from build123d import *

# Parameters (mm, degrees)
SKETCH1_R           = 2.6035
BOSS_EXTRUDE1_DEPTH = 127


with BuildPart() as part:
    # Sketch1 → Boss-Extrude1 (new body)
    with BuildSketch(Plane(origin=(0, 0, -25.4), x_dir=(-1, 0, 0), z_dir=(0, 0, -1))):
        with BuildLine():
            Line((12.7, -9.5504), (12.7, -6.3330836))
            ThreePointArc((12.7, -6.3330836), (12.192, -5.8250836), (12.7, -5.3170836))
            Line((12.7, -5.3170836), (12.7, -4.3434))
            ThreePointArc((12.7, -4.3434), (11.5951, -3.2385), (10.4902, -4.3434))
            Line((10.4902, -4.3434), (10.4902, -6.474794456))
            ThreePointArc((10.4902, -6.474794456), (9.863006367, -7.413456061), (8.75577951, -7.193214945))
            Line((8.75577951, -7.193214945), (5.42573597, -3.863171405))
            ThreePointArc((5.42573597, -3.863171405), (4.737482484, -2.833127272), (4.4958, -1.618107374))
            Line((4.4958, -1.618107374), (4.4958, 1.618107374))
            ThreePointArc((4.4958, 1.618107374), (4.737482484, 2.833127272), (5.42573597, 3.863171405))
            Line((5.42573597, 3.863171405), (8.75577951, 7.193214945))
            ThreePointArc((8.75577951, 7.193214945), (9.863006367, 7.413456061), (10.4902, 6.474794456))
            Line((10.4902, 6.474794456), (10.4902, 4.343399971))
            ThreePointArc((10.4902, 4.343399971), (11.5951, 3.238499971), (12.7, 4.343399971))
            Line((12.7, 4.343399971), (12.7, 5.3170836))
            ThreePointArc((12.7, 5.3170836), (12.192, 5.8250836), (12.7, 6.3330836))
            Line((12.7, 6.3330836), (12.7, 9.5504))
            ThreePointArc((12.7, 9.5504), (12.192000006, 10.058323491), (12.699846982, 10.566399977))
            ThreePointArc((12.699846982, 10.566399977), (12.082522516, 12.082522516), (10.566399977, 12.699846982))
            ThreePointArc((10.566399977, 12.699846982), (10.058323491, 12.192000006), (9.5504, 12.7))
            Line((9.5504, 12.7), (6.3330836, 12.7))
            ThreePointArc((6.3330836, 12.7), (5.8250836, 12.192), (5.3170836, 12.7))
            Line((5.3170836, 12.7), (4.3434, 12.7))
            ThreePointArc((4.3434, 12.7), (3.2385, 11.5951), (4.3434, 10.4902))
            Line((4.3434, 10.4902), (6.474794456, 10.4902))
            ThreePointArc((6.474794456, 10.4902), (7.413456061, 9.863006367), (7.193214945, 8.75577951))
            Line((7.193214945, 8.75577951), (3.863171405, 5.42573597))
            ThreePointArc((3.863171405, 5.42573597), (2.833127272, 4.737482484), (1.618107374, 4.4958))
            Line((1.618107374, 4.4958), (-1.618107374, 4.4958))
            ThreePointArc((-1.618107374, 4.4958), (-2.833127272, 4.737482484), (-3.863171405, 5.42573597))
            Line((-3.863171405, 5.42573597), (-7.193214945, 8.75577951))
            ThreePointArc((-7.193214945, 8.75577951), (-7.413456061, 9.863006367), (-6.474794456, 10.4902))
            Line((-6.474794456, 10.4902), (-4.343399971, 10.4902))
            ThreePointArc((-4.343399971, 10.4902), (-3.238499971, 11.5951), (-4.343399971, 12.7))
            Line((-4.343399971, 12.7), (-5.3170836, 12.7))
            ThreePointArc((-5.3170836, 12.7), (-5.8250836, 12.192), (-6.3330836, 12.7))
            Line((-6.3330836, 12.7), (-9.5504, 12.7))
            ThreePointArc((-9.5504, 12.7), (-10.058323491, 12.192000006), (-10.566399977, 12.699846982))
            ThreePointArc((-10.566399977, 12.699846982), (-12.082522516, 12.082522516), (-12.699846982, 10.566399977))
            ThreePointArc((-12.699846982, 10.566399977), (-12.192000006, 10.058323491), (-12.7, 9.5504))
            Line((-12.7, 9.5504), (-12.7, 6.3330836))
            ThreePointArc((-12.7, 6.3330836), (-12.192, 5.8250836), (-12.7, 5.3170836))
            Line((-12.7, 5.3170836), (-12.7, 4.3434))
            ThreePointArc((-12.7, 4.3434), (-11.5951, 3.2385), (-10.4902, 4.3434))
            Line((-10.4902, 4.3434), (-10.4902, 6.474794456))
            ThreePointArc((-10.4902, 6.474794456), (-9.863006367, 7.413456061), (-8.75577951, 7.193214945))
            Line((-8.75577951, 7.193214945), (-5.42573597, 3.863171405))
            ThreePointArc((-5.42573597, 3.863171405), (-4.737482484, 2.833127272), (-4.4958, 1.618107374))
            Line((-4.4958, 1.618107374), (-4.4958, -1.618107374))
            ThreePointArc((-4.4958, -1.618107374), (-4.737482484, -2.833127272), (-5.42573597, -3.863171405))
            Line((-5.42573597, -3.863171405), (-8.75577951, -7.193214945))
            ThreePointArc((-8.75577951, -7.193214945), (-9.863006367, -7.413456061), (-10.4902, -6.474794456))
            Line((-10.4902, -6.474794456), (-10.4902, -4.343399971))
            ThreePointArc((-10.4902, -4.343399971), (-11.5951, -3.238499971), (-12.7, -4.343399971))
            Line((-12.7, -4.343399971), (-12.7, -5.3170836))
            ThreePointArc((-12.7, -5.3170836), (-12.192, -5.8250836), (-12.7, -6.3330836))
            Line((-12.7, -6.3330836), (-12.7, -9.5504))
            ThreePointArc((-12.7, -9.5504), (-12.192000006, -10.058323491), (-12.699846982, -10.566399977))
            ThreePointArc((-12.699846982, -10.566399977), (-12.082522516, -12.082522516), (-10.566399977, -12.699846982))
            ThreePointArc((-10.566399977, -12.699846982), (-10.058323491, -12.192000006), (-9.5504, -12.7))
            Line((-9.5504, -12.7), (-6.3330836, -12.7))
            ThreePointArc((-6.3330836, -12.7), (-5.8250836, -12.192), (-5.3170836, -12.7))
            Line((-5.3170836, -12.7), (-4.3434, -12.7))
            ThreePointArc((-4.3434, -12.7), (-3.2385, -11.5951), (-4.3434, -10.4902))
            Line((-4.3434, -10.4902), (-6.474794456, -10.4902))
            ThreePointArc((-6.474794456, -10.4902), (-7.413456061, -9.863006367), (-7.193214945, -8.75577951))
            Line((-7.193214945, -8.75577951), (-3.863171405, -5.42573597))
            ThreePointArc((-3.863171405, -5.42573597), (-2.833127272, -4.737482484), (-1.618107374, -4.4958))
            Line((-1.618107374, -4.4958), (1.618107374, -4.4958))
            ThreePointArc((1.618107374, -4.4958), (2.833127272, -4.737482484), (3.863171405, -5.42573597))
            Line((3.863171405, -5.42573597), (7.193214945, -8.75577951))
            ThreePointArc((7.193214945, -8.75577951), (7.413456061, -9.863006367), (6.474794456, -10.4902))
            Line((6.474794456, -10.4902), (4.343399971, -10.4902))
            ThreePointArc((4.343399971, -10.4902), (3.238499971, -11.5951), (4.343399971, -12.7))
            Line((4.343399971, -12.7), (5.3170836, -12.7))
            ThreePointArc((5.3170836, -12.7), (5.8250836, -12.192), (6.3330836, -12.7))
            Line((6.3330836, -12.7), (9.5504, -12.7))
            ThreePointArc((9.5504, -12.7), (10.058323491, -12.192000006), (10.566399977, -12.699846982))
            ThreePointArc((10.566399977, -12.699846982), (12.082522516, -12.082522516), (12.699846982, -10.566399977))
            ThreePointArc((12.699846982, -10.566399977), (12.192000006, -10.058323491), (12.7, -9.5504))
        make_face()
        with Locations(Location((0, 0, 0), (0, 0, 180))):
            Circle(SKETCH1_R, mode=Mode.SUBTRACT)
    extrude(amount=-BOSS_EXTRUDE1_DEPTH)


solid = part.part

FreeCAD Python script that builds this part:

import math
import FreeCAD as App
import Part
import Sketcher
from FreeCAD import Vector
Q = App.Units.Quantity

doc = App.newDocument("Part")
body = doc.addObject("PartDesign::Body", "Body")

sketch1 = body.newObject("Sketcher::SketchObject", "Sketch")
sketch1.AttachmentSupport = (doc.getObject("XY_Plane"), [""])
sketch1.MapMode = "FlatFace"
sketch1.AttachmentOffset = App.Placement(Vector(0, 0, -1 * 25.4), App.Rotation())
sketch1.addGeometry([
    Part.LineSegment(Vector(-12.7, -9.5504, 0), Vector(-12.7, -6.333084, 0)),
    Part.ArcOfCircle(Part.Circle(Vector(-12.7, -5.825084, 0), Vector(0, 0, 1), 0.508), math.radians(-90), math.radians(90)),
    Part.LineSegment(Vector(-12.7, -5.317084, 0), Vector(-12.7, -4.3434, 0)),
    Part.ArcOfCircle(Part.Circle(Vector(-11.5951, -4.3434, 0), Vector(0, 0, 1), 1.1049), math.radians(0), math.radians(180)),
    Part.LineSegment(Vector(-10.4902, -4.3434, 0), Vector(-10.4902, -6.474794, 0)),
    Part.ArcOfCircle(Part.Circle(Vector(-9.4742, -6.474794, 0), Vector(0, 0, 1), 1.016), math.radians(180), math.radians(315)),
    Part.LineSegment(Vector(-8.75578, -7.193215, 0), Vector(-5.425736, -3.863171, 0)),
    Part.ArcOfCircle(Part.Circle(Vector(-7.6708, -1.618107, 0), Vector(0, 0, 1), 3.175), math.radians(-45), math.radians(0)),
    Part.LineSegment(Vector(-4.4958, -1.618107, 0), Vector(-4.4958, 1.618107, 0)),
    Part.ArcOfCircle(Part.Circle(Vector(-7.6708, 1.618107, 0), Vector(0, 0, 1), 3.175), math.radians(0), math.radians(45)),
    Part.LineSegment(Vector(-5.425736, 3.863171, 0), Vector(-8.75578, 7.193215, 0)),
    Part.ArcOfCircle(Part.Circle(Vector(-9.4742, 6.474794, 0), Vector(0, 0, 1), 1.016), math.radians(45), math.radians(180)),
    Part.LineSegment(Vector(-10.4902, 6.474794, 0), Vector(-10.4902, 4.3434, 0)),
    Part.ArcOfCircle(Part.Circle(Vector(-11.5951, 4.3434, 0), Vector(0, 0, 1), 1.1049), math.radians(180), math.radians(360)),
    Part.LineSegment(Vector(-12.7, 4.3434, 0), Vector(-12.7, 5.317084, 0)),
    Part.ArcOfCircle(Part.Circle(Vector(-12.7, 5.825084, 0), Vector(0, 0, 1), 0.508), math.radians(-90), math.radians(90)),
    Part.LineSegment(Vector(-12.7, 6.333084, 0), Vector(-12.7, 9.5504, 0)),
    Part.ArcOfCircle(Part.Circle(Vector(-12.7, 10.0584, 0), Vector(0, 0, 1), 0.508), math.radians(-90), math.radians(89.982742)),
    Part.ArcOfCircle(Part.Circle(Vector(-10.5918, 10.5918, 0), Vector(0, 0, 1), 2.1082), math.radians(89.309672), math.radians(180.690328)),
    Part.ArcOfCircle(Part.Circle(Vector(-10.0584, 12.7, 0), Vector(0, 0, 1), 0.508), math.radians(-179.982742), math.radians(0)),
    Part.LineSegment(Vector(-9.5504, 12.7, 0), Vector(-6.333084, 12.7, 0)),
    Part.ArcOfCircle(Part.Circle(Vector(-5.825084, 12.7, 0), Vector(0, 0, 1), 0.508), math.radians(180), math.radians(360)),
    Part.LineSegment(Vector(-5.317084, 12.7, 0), Vector(-4.3434, 12.7, 0)),
    Part.ArcOfCircle(Part.Circle(Vector(-4.3434, 11.5951, 0), Vector(0, 0, 1), 1.1049), math.radians(-90), math.radians(90)),
    Part.LineSegment(Vector(-4.3434, 10.4902, 0), Vector(-6.474794, 10.4902, 0)),
    Part.ArcOfCircle(Part.Circle(Vector(-6.474794, 9.4742, 0), Vector(0, 0, 1), 1.016), math.radians(90), math.radians(225)),
    Part.LineSegment(Vector(-7.193215, 8.75578, 0), Vector(-3.863171, 5.425736, 0)),
    Part.ArcOfCircle(Part.Circle(Vector(-1.618107, 7.6708, 0), Vector(0, 0, 1), 3.175), math.radians(-135), math.radians(-90)),
    Part.LineSegment(Vector(-1.618107, 4.4958, 0), Vector(1.618107, 4.4958, 0)),
    Part.ArcOfCircle(Part.Circle(Vector(1.618107, 7.6708, 0), Vector(0, 0, 1), 3.175), math.radians(-90), math.radians(-45)),
    Part.LineSegment(Vector(3.863171, 5.425736, 0), Vector(7.193215, 8.75578, 0)),
    Part.ArcOfCircle(Part.Circle(Vector(6.474794, 9.4742, 0), Vector(0, 0, 1), 1.016), math.radians(-45), math.radians(90)),
    Part.LineSegment(Vector(6.474794, 10.4902, 0), Vector(4.3434, 10.4902, 0)),
    Part.ArcOfCircle(Part.Circle(Vector(4.3434, 11.5951, 0), Vector(0, 0, 1), 1.1049), math.radians(90), math.radians(270)),
    Part.LineSegment(Vector(4.3434, 12.7, 0), Vector(5.317084, 12.7, 0)),
    Part.ArcOfCircle(Part.Circle(Vector(5.825084, 12.7, 0), Vector(0, 0, 1), 0.508), math.radians(180), math.radians(360)),
    Part.LineSegment(Vector(6.333084, 12.7, 0), Vector(9.5504, 12.7, 0)),
    Part.ArcOfCircle(Part.Circle(Vector(10.0584, 12.7, 0), Vector(0, 0, 1), 0.508), math.radians(180), math.radians(359.982742)),
    Part.ArcOfCircle(Part.Circle(Vector(10.5918, 10.5918, 0), Vector(0, 0, 1), 2.1082), math.radians(-0.690328), math.radians(90.690328)),
    Part.ArcOfCircle(Part.Circle(Vector(12.7, 10.0584, 0), Vector(0, 0, 1), 0.508), math.radians(90.017258), math.radians(270)),
    Part.LineSegment(Vector(12.7, 9.5504, 0), Vector(12.7, 6.333084, 0)),
    Part.ArcOfCircle(Part.Circle(Vector(12.7, 5.825084, 0), Vector(0, 0, 1), 0.508), math.radians(90), math.radians(270)),
    Part.LineSegment(Vector(12.7, 5.317084, 0), Vector(12.7, 4.3434, 0)),
    Part.ArcOfCircle(Part.Circle(Vector(11.5951, 4.3434, 0), Vector(0, 0, 1), 1.1049), math.radians(180), math.radians(360)),
    Part.LineSegment(Vector(10.4902, 4.3434, 0), Vector(10.4902, 6.474794, 0)),
    Part.ArcOfCircle(Part.Circle(Vector(9.4742, 6.474794, 0), Vector(0, 0, 1), 1.016), math.radians(0), math.radians(135)),
    Part.LineSegment(Vector(8.75578, 7.193215, 0), Vector(5.425736, 3.863171, 0)),
    Part.ArcOfCircle(Part.Circle(Vector(7.6708, 1.618107, 0), Vector(0, 0, 1), 3.175), math.radians(135), math.radians(180)),
    Part.LineSegment(Vector(4.4958, 1.618107, 0), Vector(4.4958, -1.618107, 0)),
    Part.ArcOfCircle(Part.Circle(Vector(7.6708, -1.618107, 0), Vector(0, 0, 1), 3.175), math.radians(180), math.radians(225)),
    Part.LineSegment(Vector(5.425736, -3.863171, 0), Vector(8.75578, -7.193215, 0)),
    Part.ArcOfCircle(Part.Circle(Vector(9.4742, -6.474794, 0), Vector(0, 0, 1), 1.016), math.radians(-135), math.radians(0)),
    Part.LineSegment(Vector(10.4902, -6.474794, 0), Vector(10.4902, -4.3434, 0)),
    Part.ArcOfCircle(Part.Circle(Vector(11.5951, -4.3434, 0), Vector(0, 0, 1), 1.1049), math.radians(0), math.radians(180)),
    Part.LineSegment(Vector(12.7, -4.3434, 0), Vector(12.7, -5.317084, 0)),
    Part.ArcOfCircle(Part.Circle(Vector(12.7, -5.825084, 0), Vector(0, 0, 1), 0.508), math.radians(90), math.radians(270)),
    Part.LineSegment(Vector(12.7, -6.333084, 0), Vector(12.7, -9.5504, 0)),
    Part.ArcOfCircle(Part.Circle(Vector(12.7, -10.0584, 0), Vector(0, 0, 1), 0.508), math.radians(90), math.radians(269.982742)),
    Part.ArcOfCircle(Part.Circle(Vector(10.5918, -10.5918, 0), Vector(0, 0, 1), 2.1082), math.radians(-90.690328), math.radians(0.690328)),
    Part.ArcOfCircle(Part.Circle(Vector(10.0584, -12.7, 0), Vector(0, 0, 1), 0.508), math.radians(0.017258), math.radians(180)),
    Part.LineSegment(Vector(9.5504, -12.7, 0), Vector(6.333084, -12.7, 0)),
    Part.ArcOfCircle(Part.Circle(Vector(5.825084, -12.7, 0), Vector(0, 0, 1), 0.508), math.radians(0), math.radians(180)),
    Part.LineSegment(Vector(5.317084, -12.7, 0), Vector(4.3434, -12.7, 0)),
    Part.ArcOfCircle(Part.Circle(Vector(4.3434, -11.5951, 0), Vector(0, 0, 1), 1.1049), math.radians(90), math.radians(270)),
    Part.LineSegment(Vector(4.3434, -10.4902, 0), Vector(6.474794, -10.4902, 0)),
    Part.ArcOfCircle(Part.Circle(Vector(6.474794, -9.4742, 0), Vector(0, 0, 1), 1.016), math.radians(-90), math.radians(45)),
    Part.LineSegment(Vector(7.193215, -8.75578, 0), Vector(3.863171, -5.425736, 0)),
    Part.ArcOfCircle(Part.Circle(Vector(1.618107, -7.6708, 0), Vector(0, 0, 1), 3.175), math.radians(45), math.radians(90)),
    Part.LineSegment(Vector(1.618107, -4.4958, 0), Vector(-1.618107, -4.4958, 0)),
    Part.ArcOfCircle(Part.Circle(Vector(-1.618107, -7.6708, 0), Vector(0, 0, 1), 3.175), math.radians(90), math.radians(135)),
    Part.LineSegment(Vector(-3.863171, -5.425736, 0), Vector(-7.193215, -8.75578, 0)),
    Part.ArcOfCircle(Part.Circle(Vector(-6.474794, -9.4742, 0), Vector(0, 0, 1), 1.016), math.radians(135), math.radians(270)),
    Part.LineSegment(Vector(-6.474794, -10.4902, 0), Vector(-4.3434, -10.4902, 0)),
    Part.ArcOfCircle(Part.Circle(Vector(-4.3434, -11.5951, 0), Vector(0, 0, 1), 1.1049), math.radians(-90), math.radians(90)),
    Part.LineSegment(Vector(-4.3434, -12.7, 0), Vector(-5.317084, -12.7, 0)),
    Part.ArcOfCircle(Part.Circle(Vector(-5.825084, -12.7, 0), Vector(0, 0, 1), 0.508), math.radians(0), math.radians(180)),
    Part.LineSegment(Vector(-6.333084, -12.7, 0), Vector(-9.5504, -12.7, 0)),
    Part.ArcOfCircle(Part.Circle(Vector(-10.0584, -12.7, 0), Vector(0, 0, 1), 0.508), math.radians(0), math.radians(179.982742)),
    Part.ArcOfCircle(Part.Circle(Vector(-10.5918, -10.5918, 0), Vector(0, 0, 1), 2.1082), math.radians(179.309672), math.radians(270.690328)),
    Part.ArcOfCircle(Part.Circle(Vector(-12.7, -10.0584, 0), Vector(0, 0, 1), 0.508), math.radians(-89.982742), math.radians(90)),
    Part.Circle(Vector(0, 0, 0), Vector(0, 0, 1), 2.6035),
], False)
sketch1.addConstraint([
    Sketcher.Constraint("Coincident", 0, 2, 1, 1),
    Sketcher.Constraint("Coincident", 1, 2, 2, 1),
    Sketcher.Constraint("Tangent", 2, 2, 3, 2),
    Sketcher.Constraint("Tangent", 3, 1, 4, 1),
    Sketcher.Constraint("Tangent", 4, 2, 5, 1),
    Sketcher.Constraint("Tangent", 5, 2, 6, 1),
    Sketcher.Constraint("Tangent", 6, 2, 7, 1),
    Sketcher.Constraint("Tangent", 7, 2, 8, 1),
    Sketcher.Constraint("Tangent", 8, 2, 9, 1),
    Sketcher.Constraint("Tangent", 9, 2, 10, 1),
    Sketcher.Constraint("Tangent", 10, 2, 11, 1),
    Sketcher.Constraint("Tangent", 11, 2, 12, 1),
    Sketcher.Constraint("Tangent", 12, 2, 13, 2),
    Sketcher.Constraint("Tangent", 13, 1, 14, 1),
    Sketcher.Constraint("Coincident", 14, 2, 15, 1),
    Sketcher.Constraint("Coincident", 15, 2, 16, 1),
    Sketcher.Constraint("Coincident", 16, 2, 17, 1),
    Sketcher.Constraint("Coincident", 17, 2, 18, 2),
    Sketcher.Constraint("Coincident", 18, 1, 19, 1),
    Sketcher.Constraint("Coincident", 19, 2, 20, 1),
    Sketcher.Constraint("Coincident", 20, 2, 21, 1),
    Sketcher.Constraint("Coincident", 21, 2, 22, 1),
    Sketcher.Constraint("Tangent", 22, 2, 23, 2),
    Sketcher.Constraint("Tangent", 23, 1, 24, 1),
    Sketcher.Constraint("Tangent", 24, 2, 25, 1),
    Sketcher.Constraint("Tangent", 25, 2, 26, 1),
    Sketcher.Constraint("Tangent", 26, 2, 27, 1),
    Sketcher.Constraint("Tangent", 27, 2, 28, 1),
    Sketcher.Constraint("Tangent", 28, 2, 29, 1),
    Sketcher.Constraint("Tangent", 29, 2, 30, 1),
    Sketcher.Constraint("Tangent", 30, 2, 31, 1),
    Sketcher.Constraint("Tangent", 31, 2, 32, 1),
    Sketcher.Constraint("Tangent", 32, 2, 33, 2),
    Sketcher.Constraint("Tangent", 33, 1, 34, 1),
    Sketcher.Constraint("Coincident", 34, 2, 35, 1),
    Sketcher.Constraint("Coincident", 35, 2, 36, 1),
    Sketcher.Constraint("Coincident", 36, 2, 37, 1),
    Sketcher.Constraint("Coincident", 37, 2, 38, 2),
    Sketcher.Constraint("Coincident", 38, 1, 39, 1),
    Sketcher.Constraint("Coincident", 39, 2, 40, 1),
    Sketcher.Constraint("Coincident", 40, 2, 41, 1),
    Sketcher.Constraint("Coincident", 41, 2, 42, 1),
    Sketcher.Constraint("Tangent", 42, 2, 43, 2),
    Sketcher.Constraint("Tangent", 43, 1, 44, 1),
    Sketcher.Constraint("Tangent", 44, 2, 45, 1),
    Sketcher.Constraint("Tangent", 45, 2, 46, 1),
    Sketcher.Constraint("Tangent", 46, 2, 47, 1),
    Sketcher.Constraint("Tangent", 47, 2, 48, 1),
    Sketcher.Constraint("Tangent", 48, 2, 49, 1),
    Sketcher.Constraint("Tangent", 49, 2, 50, 1),
    Sketcher.Constraint("Tangent", 50, 2, 51, 1),
    Sketcher.Constraint("Tangent", 51, 2, 52, 1),
    Sketcher.Constraint("Tangent", 52, 2, 53, 2),
    Sketcher.Constraint("Tangent", 53, 1, 54, 1),
    Sketcher.Constraint("Coincident", 54, 2, 55, 1),
    Sketcher.Constraint("Coincident", 55, 2, 56, 1),
    Sketcher.Constraint("Coincident", 56, 2, 57, 1),
    Sketcher.Constraint("Coincident", 57, 2, 58, 2),
    Sketcher.Constraint("Coincident", 58, 1, 59, 1),
    Sketcher.Constraint("Coincident", 59, 2, 60, 1),
    Sketcher.Constraint("Coincident", 60, 2, 61, 1),
    Sketcher.Constraint("Coincident", 61, 2, 62, 1),
    Sketcher.Constraint("Tangent", 62, 2, 63, 2),
    Sketcher.Constraint("Tangent", 63, 1, 64, 1),
    Sketcher.Constraint("Tangent", 64, 2, 65, 1),
    Sketcher.Constraint("Tangent", 65, 2, 66, 1),
    Sketcher.Constraint("Tangent", 66, 2, 67, 1),
    Sketcher.Constraint("Tangent", 67, 2, 68, 1),
    Sketcher.Constraint("Tangent", 68, 2, 69, 1),
    Sketcher.Constraint("Tangent", 69, 2, 70, 1),
    Sketcher.Constraint("Tangent", 70, 2, 71, 1),
    Sketcher.Constraint("Tangent", 71, 2, 72, 1),
    Sketcher.Constraint("Tangent", 72, 2, 73, 2),
    Sketcher.Constraint("Tangent", 73, 1, 74, 1),
    Sketcher.Constraint("Coincident", 74, 2, 75, 1),
    Sketcher.Constraint("Coincident", 75, 2, 76, 1),
    Sketcher.Constraint("Coincident", 76, 2, 77, 1),
    Sketcher.Constraint("Coincident", 77, 2, 78, 2),
    Sketcher.Constraint("Coincident", 78, 1, 79, 1),
    Sketcher.Constraint("Coincident", 79, 2, 0, 1),
    Sketcher.Constraint("Vertical", 0),
    Sketcher.Constraint("Vertical", 2),
    Sketcher.Constraint("Vertical", 4),
    Sketcher.Constraint("Vertical", 8),
    Sketcher.Constraint("Vertical", 12),
    Sketcher.Constraint("Vertical", 14),
    Sketcher.Constraint("Vertical", 16),
    Sketcher.Constraint("Horizontal", 20),
    Sketcher.Constraint("Horizontal", 22),
    Sketcher.Constraint("Horizontal", 24),
    Sketcher.Constraint("Horizontal", 28),
    Sketcher.Constraint("Horizontal", 32),
    Sketcher.Constraint("Horizontal", 34),
    Sketcher.Constraint("Horizontal", 36),
    Sketcher.Constraint("Vertical", 40),
    Sketcher.Constraint("Vertical", 42),
    Sketcher.Constraint("Vertical", 44),
    Sketcher.Constraint("Vertical", 48),
    Sketcher.Constraint("Vertical", 52),
    Sketcher.Constraint("Vertical", 54),
    Sketcher.Constraint("Vertical", 56),
    Sketcher.Constraint("Horizontal", 60),
    Sketcher.Constraint("Horizontal", 62),
    Sketcher.Constraint("Horizontal", 64),
    Sketcher.Constraint("Horizontal", 68),
    Sketcher.Constraint("Horizontal", 72),
    Sketcher.Constraint("Horizontal", 74),
    Sketcher.Constraint("Horizontal", 76),
    Sketcher.Constraint("Coincident", 80, 3, -1, 1),
    Sketcher.Constraint("Equal", 7, 9),
    Sketcher.Constraint("Equal", 5, 11),
    Sketcher.Constraint("Equal", 3, 13),
    Sketcher.Constraint("Equal", 1, 15),
    Sketcher.Constraint("Equal", 15, 17),
    Sketcher.Constraint("Equal", 17, 19),
    Sketcher.Constraint("Equal", 19, 21),
    Sketcher.Constraint("Equal", 13, 23),
    Sketcher.Constraint("Equal", 11, 25),
    Sketcher.Constraint("Equal", 9, 27),
    Sketcher.Constraint("Equal", 27, 29),
    Sketcher.Constraint("Equal", 25, 31),
    Sketcher.Constraint("Equal", 23, 33),
    Sketcher.Constraint("Equal", 21, 35),
    Sketcher.Constraint("Equal", 35, 37),
    Sketcher.Constraint("Equal", 18, 38),
    Sketcher.Constraint("Equal", 37, 39),
    Sketcher.Constraint("Equal", 39, 41),
    Sketcher.Constraint("Equal", 33, 43),
    Sketcher.Constraint("Equal", 31, 45),
    Sketcher.Constraint("Equal", 29, 47),
    Sketcher.Constraint("Equal", 47, 49),
    Sketcher.Constraint("Equal", 45, 51),
    Sketcher.Constraint("Equal", 43, 53),
    Sketcher.Constraint("Equal", 41, 55),
    Sketcher.Constraint("Equal", 55, 57),
    Sketcher.Constraint("Equal", 38, 58),
    Sketcher.Constraint("Equal", 57, 59),
    Sketcher.Constraint("Equal", 59, 61),
    Sketcher.Constraint("Equal", 53, 63),
    Sketcher.Constraint("Equal", 51, 65),
    Sketcher.Constraint("Equal", 49, 67),
    Sketcher.Constraint("Equal", 67, 69),
    Sketcher.Constraint("Equal", 65, 71),
    Sketcher.Constraint("Equal", 63, 73),
    Sketcher.Constraint("Equal", 61, 75),
    Sketcher.Constraint("Equal", 75, 77),
    Sketcher.Constraint("Equal", 58, 78),
    Sketcher.Constraint("Equal", 77, 79),
    Sketcher.Constraint("Symmetric", 1, 3, 41, 3, -1, 1),
    Sketcher.Constraint("Symmetric", 3, 3, 43, 3, -1, 1),
    Sketcher.Constraint("Symmetric", 7, 3, 47, 3, -1, 1),
    Sketcher.Constraint("Symmetric", 11, 3, 51, 3, -1, 1),
    Sketcher.Constraint("Symmetric", 15, 3, 55, 3, -1, 1),
    Sketcher.Constraint("Symmetric", 17, 3, 57, 3, -1, 1),
    Sketcher.Constraint("Symmetric", 18, 3, 58, 3, -1, 1),
    Sketcher.Constraint("Symmetric", 19, 3, 59, 3, -1, 1),
    Sketcher.Constraint("Symmetric", 21, 3, 61, 3, -1, 1),
    Sketcher.Constraint("Symmetric", 23, 3, 63, 3, -1, 1),
    Sketcher.Constraint("Symmetric", 27, 3, 67, 3, -1, 1),
    Sketcher.Constraint("Symmetric", 31, 3, 71, 3, -1, 1),
    Sketcher.Constraint("Symmetric", 35, 3, 75, 3, -1, 1),
    Sketcher.Constraint("Symmetric", 37, 3, 77, 3, -1, 1),
    Sketcher.Constraint("Symmetric", 38, 3, 78, 3, -1, 1),
    Sketcher.Constraint("Symmetric", 39, 3, 79, 3, -1, 1),
    Sketcher.Constraint("Symmetric", 25, 3, 31, 3, -2),
    Sketcher.Constraint("Symmetric", 21, 3, 35, 3, -2),
    Sketcher.Constraint("Symmetric", 19, 3, 37, 3, -2),
    Sketcher.Constraint("Symmetric", 18, 3, 38, 3, -2),
    Sketcher.Constraint("Symmetric", 17, 3, 39, 3, -2),
    Sketcher.Constraint("Symmetric", 15, 3, 41, 3, -2),
    Sketcher.Constraint("Symmetric", 13, 3, 43, 3, -2),
    Sketcher.Constraint("Symmetric", 10, 2, 45, 2, -2),
    Sketcher.Constraint("Symmetric", 6, 2, 49, 2, -2),
    Sketcher.Constraint("Symmetric", 66, 2, 69, 2, -2),
    Sketcher.Constraint("Perpendicular", 6, 10),
    Sketcher.Constraint("Parallel", 10, 26),
    Sketcher.Constraint("Perpendicular", 26, 30),
    Sketcher.Constraint("Horizontal", 19, 3, 21, 3),
    Sketcher.Constraint("Horizontal", 3, 3, 53, 3),
    Sketcher.Constraint("Horizontal", 37, 3, 19, 2),
    Sketcher.Constraint("Horizontal", 20, 2, 21, 2),
    Sketcher.Constraint("Horizontal", 34, 2, 35, 2),
    Sketcher.Constraint("Horizontal", 77, 3, 59, 2),
    Sketcher.Constraint("Horizontal", 74, 2, 75, 2),
    Sketcher.Constraint("Vertical", 15, 3, 17, 3),
    Sketcher.Constraint("Vertical", 33, 3, 63, 3),
    Sketcher.Constraint("Vertical", 23, 3, 73, 3),
    Sketcher.Constraint("Vertical", 79, 3, 0, 2),
    Sketcher.Constraint("Vertical", 0, 2, 1, 2),
    Sketcher.Constraint("Vertical", 14, 2, 15, 2),
    Sketcher.Constraint("Vertical", 57, 3, 39, 2),
    Sketcher.Constraint("Vertical", 54, 2, 55, 2),
    Sketcher.Constraint("Equal", 76, 0),
    Sketcher.Constraint("Equal", 74, 2),
    Sketcher.Constraint("Equal", 72, 4),
    Sketcher.Constraint("Equal", 68, 8),
    Sketcher.Constraint("Equal", 10, 26),
    Sketcher.Constraint("Radius", 1, Q("0.02 in")),
    Sketcher.Constraint("Radius", 5, Q("0.04 in")),
    Sketcher.Constraint("Diameter", 80, Q("0.205 in")),
    Sketcher.Constraint("Radius", 7, Q("0.125 in")),
    Sketcher.Constraint("Radius", 18, Q("0.083 in")),
    Sketcher.Constraint("DistanceX", 1, 3, -1, 1, Q("0.5 in")),
    Sketcher.Constraint("DistanceY", -1, 1, 19, 3, Q("0.5 in")),
    Sketcher.Constraint("Radius", 3, Q("0.0435 in")),
    Sketcher.Constraint("DistanceY", 3, 3, -1, 1, Q("0.171 in")),
    Sketcher.Constraint("DistanceX", 7, 3, -1, 1, Q("0.302 in")),
    Sketcher.Constraint("DistanceY", -1, 1, 17, 3, Q("0.396 in")),
    Sketcher.Constraint("DistanceX", 18, 3, -1, 1, Q("0.417 in")),
    Sketcher.Constraint("DistanceY", -1, 1, 18, 3, Q("0.417 in")),
    Sketcher.Constraint("DistanceX", 20, 1, 20, 2, 3.217316),
    Sketcher.Constraint("DistanceX", 24, 2, 24, 1, 2.131394),
])
pad1 = body.newObject("PartDesign::Pad", "Pad")
pad1.Profile = sketch1
pad1.Length = Q("5 in")

doc.recompute()
